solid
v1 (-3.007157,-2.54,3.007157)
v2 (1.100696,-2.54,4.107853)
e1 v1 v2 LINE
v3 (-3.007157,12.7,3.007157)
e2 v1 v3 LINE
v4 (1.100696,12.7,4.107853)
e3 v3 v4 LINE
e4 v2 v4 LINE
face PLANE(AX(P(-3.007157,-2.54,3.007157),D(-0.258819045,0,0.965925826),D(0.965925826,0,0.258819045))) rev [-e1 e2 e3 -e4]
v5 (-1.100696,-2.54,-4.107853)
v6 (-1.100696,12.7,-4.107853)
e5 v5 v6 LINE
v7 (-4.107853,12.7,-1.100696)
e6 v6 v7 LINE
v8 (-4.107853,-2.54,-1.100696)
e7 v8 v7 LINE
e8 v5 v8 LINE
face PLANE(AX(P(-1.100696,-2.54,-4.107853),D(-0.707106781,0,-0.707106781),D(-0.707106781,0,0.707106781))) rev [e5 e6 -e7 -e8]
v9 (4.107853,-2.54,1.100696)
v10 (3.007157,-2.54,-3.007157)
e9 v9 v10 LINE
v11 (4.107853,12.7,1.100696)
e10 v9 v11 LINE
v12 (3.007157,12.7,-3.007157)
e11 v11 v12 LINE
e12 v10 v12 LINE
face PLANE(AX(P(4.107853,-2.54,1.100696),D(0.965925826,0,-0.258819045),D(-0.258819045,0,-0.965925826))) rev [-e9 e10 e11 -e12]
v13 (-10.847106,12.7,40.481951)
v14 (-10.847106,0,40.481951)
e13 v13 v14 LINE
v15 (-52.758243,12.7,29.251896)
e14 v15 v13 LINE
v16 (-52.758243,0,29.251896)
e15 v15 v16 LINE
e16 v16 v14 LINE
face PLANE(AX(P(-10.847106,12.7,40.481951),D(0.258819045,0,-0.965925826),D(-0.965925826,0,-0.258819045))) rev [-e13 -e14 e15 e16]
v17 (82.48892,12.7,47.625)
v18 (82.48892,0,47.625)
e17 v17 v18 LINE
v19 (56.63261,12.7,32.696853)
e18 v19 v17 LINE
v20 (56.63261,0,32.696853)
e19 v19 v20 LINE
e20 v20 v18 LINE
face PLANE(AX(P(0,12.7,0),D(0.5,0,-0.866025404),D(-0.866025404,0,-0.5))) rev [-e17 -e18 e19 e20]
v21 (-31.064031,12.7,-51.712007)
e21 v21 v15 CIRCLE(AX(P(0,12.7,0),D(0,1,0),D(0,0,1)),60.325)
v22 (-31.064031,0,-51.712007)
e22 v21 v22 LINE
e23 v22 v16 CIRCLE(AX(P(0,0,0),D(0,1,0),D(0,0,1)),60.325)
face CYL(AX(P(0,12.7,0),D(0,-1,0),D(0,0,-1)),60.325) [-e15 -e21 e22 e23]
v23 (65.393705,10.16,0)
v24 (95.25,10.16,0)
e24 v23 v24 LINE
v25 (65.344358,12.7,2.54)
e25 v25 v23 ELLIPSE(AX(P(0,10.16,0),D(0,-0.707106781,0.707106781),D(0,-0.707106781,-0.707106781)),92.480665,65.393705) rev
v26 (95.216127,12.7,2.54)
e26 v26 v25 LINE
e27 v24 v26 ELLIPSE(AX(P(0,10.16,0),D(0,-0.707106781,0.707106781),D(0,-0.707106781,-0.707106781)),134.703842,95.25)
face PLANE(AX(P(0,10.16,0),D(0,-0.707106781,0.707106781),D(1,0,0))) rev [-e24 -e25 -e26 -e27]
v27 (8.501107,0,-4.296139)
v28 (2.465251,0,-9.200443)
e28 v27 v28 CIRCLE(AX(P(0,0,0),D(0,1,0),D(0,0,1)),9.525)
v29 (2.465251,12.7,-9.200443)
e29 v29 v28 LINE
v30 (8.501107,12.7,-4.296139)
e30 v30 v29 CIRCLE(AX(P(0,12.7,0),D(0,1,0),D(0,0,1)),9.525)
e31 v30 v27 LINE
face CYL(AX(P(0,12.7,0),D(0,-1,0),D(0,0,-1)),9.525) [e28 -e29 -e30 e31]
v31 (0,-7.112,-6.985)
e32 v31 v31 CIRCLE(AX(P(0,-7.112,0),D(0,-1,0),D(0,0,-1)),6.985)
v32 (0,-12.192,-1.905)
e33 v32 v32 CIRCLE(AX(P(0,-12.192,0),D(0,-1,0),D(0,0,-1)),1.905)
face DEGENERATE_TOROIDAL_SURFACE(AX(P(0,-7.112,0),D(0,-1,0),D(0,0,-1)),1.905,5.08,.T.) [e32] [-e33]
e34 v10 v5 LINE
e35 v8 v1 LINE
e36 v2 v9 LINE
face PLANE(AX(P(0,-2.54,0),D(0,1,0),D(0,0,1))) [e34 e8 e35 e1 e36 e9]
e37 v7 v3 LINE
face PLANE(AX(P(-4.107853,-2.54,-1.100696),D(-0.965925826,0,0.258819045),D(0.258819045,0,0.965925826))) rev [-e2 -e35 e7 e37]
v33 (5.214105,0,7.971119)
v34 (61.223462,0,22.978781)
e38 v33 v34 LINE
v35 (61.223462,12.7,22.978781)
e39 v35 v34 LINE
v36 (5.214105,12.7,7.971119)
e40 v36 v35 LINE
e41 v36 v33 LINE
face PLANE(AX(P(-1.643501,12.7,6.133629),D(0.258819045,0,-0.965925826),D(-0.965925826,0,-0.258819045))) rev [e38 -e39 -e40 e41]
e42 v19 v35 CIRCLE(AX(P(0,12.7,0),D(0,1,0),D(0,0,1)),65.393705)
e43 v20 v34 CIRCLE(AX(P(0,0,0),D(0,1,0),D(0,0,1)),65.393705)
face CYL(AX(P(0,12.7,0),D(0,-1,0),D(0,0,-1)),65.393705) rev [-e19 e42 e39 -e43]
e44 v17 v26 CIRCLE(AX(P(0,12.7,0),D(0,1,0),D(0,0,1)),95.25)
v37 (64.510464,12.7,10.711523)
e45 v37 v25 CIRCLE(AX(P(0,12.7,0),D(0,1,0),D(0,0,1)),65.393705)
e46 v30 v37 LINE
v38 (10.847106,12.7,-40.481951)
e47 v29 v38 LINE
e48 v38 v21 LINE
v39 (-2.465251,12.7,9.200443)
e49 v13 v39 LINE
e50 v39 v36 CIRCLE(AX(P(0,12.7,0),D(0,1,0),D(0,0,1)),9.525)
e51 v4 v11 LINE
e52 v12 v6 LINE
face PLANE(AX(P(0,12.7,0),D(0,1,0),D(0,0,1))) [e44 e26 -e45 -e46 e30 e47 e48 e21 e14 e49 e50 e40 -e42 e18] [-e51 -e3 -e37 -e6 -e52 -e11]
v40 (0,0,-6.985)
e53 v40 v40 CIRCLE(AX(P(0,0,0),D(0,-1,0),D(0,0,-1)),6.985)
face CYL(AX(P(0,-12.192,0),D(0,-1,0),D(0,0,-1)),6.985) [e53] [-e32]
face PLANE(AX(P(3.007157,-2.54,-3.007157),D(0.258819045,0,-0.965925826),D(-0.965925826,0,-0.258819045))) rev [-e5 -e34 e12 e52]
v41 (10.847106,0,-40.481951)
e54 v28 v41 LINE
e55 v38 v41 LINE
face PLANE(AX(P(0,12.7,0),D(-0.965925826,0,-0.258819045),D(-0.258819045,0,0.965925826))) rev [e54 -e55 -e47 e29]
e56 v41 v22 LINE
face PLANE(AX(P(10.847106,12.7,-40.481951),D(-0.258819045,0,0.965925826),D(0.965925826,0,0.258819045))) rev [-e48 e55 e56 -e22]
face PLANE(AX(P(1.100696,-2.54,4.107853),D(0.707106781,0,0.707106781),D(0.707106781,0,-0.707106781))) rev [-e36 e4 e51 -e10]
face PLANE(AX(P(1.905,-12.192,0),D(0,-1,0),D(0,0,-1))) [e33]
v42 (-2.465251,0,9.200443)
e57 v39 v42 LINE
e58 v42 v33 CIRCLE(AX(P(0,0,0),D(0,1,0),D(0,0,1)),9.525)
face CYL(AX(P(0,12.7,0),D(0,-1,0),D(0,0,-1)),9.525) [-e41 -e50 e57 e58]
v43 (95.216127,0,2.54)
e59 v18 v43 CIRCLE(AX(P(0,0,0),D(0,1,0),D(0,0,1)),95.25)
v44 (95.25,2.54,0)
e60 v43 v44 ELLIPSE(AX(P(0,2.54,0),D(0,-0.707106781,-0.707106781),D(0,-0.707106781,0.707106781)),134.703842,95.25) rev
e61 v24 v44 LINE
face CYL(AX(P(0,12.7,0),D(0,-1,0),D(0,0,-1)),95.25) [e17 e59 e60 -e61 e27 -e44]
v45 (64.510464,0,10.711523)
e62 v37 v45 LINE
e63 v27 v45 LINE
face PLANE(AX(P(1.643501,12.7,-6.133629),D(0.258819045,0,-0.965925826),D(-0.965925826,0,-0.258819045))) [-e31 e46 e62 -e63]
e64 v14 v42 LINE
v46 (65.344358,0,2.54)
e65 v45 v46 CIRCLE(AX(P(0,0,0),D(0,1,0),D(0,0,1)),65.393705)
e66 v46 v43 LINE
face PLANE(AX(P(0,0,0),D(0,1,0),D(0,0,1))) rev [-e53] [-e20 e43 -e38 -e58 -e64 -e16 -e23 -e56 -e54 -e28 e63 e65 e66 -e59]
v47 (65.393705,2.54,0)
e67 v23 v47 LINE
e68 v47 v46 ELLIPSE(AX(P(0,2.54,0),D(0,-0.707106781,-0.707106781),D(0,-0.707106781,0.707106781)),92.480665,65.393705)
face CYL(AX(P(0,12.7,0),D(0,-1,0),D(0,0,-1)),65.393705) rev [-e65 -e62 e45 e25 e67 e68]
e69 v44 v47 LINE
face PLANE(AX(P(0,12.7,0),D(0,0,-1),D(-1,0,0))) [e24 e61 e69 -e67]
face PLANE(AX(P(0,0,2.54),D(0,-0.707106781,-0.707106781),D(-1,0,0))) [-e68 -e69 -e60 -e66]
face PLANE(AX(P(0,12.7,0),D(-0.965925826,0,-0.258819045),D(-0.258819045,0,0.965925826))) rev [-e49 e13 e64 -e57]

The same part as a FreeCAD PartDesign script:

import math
import FreeCAD as App
import Part
import Sketcher

V = App.Vector
Q = App.Units.Quantity


def edges_at(feature, points):
    """Names of the edges that pass closest to the given points."""
    edges = feature.Shape.Edges
    near = lambda p: min(range(len(edges)), key=lambda i: edges[i].distToShape(Part.Vertex(*p))[0])
    return sorted({f"Edge{near(p) + 1}" for p in points})

doc = App.newDocument("Part")
params = doc.addObject("Spreadsheet::Sheet", "Params")
for row, (alias, value) in enumerate([
    ("sketch1_radius", "3.75 in"),
    ("sketch1_radius2", "0.375 in"),
    ("sketch1_radius3", "2.375 in"),
    ("sketch1_length", "1.275 in"),
    ("pad1_length", "0.5 in"),
    ("sketch2_radius", "0.2 in"),
    ("sketch2_height", "0.48 in"),
    ("sketch2_width", "0.275 in"),
    ("revolution_angle", "360 deg"),
    ("pocket1_length", "0.6 in"),
    ("chamfer_size", "0.1 in"),
], start=1):
    params.set(f"A{row}", alias)
    params.set(f"B{row}", "=" + value)
    params.setAlias(f"B{row}", alias)

body = doc.addObject("PartDesign::Body", "Body")

# Sketch on XZ plane
sketch1 = doc.addObject("Sketcher::SketchObject", "Sketch")
body.addObject(sketch1)
sketch1.AttachmentSupport = (doc.XZ_Plane, [""])
sketch1.MapMode = "FlatFace"
sketch1.addGeometry([
    Part.LineSegment(V(95.25, 0, 0), V(65.393705, 0, 0)),  # 0
    Part.ArcOfCircle(Part.Circle(V(0, 0, 0), V(0, 0, 1), 65.393705), math.radians(0), math.radians(9.427561)),  # 1
    Part.LineSegment(V(64.510464, 10.711523, 0), V(8.501107, -4.296139, 0)),  # 2
    Part.ArcOfCircle(Part.Circle(V(0, 0, 0), V(0, 0, 1), 9.525), math.radians(-75), math.radians(-26.810315)),  # 3
    Part.LineSegment(V(2.465251, -9.200443, 0), V(10.847106, -40.481951, 0)),  # 4
    Part.LineSegment(V(10.847106, -40.481951, 0), V(-31.064031, -51.712007, 0)),  # 5
    Part.ArcOfCircle(Part.Circle(V(0, 0, 0), V(0, 0, 1), 60.325), math.radians(150.993749), math.radians(239.006251)),  # 6
    Part.LineSegment(V(-52.758243, 29.251896, 0), V(-10.847106, 40.481951, 0)),  # 7
    Part.LineSegment(V(-10.847106, 40.481951, 0), V(-2.465251, 9.200443, 0)),  # 8
    Part.ArcOfCircle(Part.Circle(V(0, 0, 0), V(0, 0, 1), 9.525), math.radians(56.810315), math.radians(105)),  # 9
    Part.LineSegment(V(5.214105, 7.971119, 0), V(61.223462, 22.978781, 0)),  # 10
    Part.ArcOfCircle(Part.Circle(V(0, 0, 0), V(0, 0, 1), 65.393705), math.radians(20.572439), math.radians(30)),  # 11
    Part.LineSegment(V(56.63261, 32.696853, 0), V(82.48892, 47.625, 0)),  # 12
    Part.ArcOfCircle(Part.Circle(V(0, 0, 0), V(0, 0, 1), 95.25), math.radians(0), math.radians(30)),  # 13
], False)
sketch1.addConstraint([
    Sketcher.Constraint("Coincident", 0, 2, 1, 1),
    Sketcher.Constraint("Coincident", 1, 2, 2, 1),
    Sketcher.Constraint("Coincident", 2, 2, 3, 2),
    Sketcher.Constraint("Coincident", 3, 1, 4, 1),
    Sketcher.Constraint("Coincident", 4, 2, 5, 1),
    Sketcher.Constraint("Coincident", 5, 2, 6, 2),
    Sketcher.Constraint("Coincident", 6, 1, 7, 1),
    Sketcher.Constraint("Coincident", 7, 2, 8, 1),
    Sketcher.Constraint("Coincident", 8, 2, 9, 2),
    Sketcher.Constraint("Coincident", 9, 1, 10, 1),
    Sketcher.Constraint("Coincident", 10, 2, 11, 1),
    Sketcher.Constraint("Coincident", 11, 2, 12, 1),
    Sketcher.Constraint("Coincident", 12, 2, 13, 2),
    Sketcher.Constraint("Coincident", 13, 1, 0, 1),
    Sketcher.Constraint("Horizontal", 0),
    Sketcher.Constraint("Coincident", 1, 3, -1, 1),
    Sketcher.Constraint("Coincident", 3, 3, -1, 1),
    Sketcher.Constraint("Coincident", 6, 3, -1, 1),
    Sketcher.Constraint("Coincident", 9, 3, -1, 1),
    Sketcher.Constraint("Coincident", 11, 3, -1, 1),
    Sketcher.Constraint("Coincident", 13, 3, -1, 1),
    Sketcher.Constraint("Equal", 3, 9),
    Sketcher.Constraint("Equal", 1, 11),
    Sketcher.Constraint("Symmetric", 4, 2, 7, 2, -1, 1),
    Sketcher.Constraint("PointOnObject", 0, 2, -1),
    Sketcher.Constraint("Perpendicular", 2, 4),
    Sketcher.Constraint("Perpendicular", 4, 5),
    Sketcher.Constraint("Parallel", 5, 7),
    Sketcher.Constraint("Perpendicular", 7, 8),
    Sketcher.Constraint("Perpendicular", 8, 10),
    Sketcher.Constraint("Equal", 5, 7),
    Sketcher.Constraint("Equal", 2, 10),
    Sketcher.Constraint("Radius", 13, Q("3.75 in")),
    Sketcher.Constraint("Angle", 2, Q("-165 deg")),
    Sketcher.Constraint("Angle", 12, Q("30 deg")),
    Sketcher.Constraint("Radius", 3, Q("0.375 in")),
    Sketcher.Constraint("Radius", 6, Q("2.375 in")),
    Sketcher.Constraint("Distance", 4, Q("1.275 in")),
    Sketcher.Constraint("DistanceY", -1, 1, 12, 2, Q("1.875 in")),
    Sketcher.Constraint("Radius", 1, 65.393705),
    Sketcher.Constraint("DistanceX", 2, 2, 4, 2, 2.346),
])
sketch1.setExpression("Constraints[32]", "Params.sketch1_radius")
sketch1.setExpression("Constraints[35]", "Params.sketch1_radius2")
sketch1.setExpression("Constraints[36]", "Params.sketch1_radius3")
sketch1.setExpression("Constraints[37]", "Params.sketch1_length")
pad1 = doc.addObject("PartDesign::Pad", "Pad")
body.addObject(pad1)
pad1.Profile = sketch1
pad1.setExpression("Length", "Params.pad1_length")
pad1.Reversed = True

# Sketch on XY plane
sketch2 = doc.addObject("Sketcher::SketchObject", "Sketch001")
body.addObject(sketch2)
sketch2.AttachmentSupport = (doc.XY_Plane, [""])
sketch2.MapMode = "FlatFace"
sketch2.addGeometry([
    Part.LineSegment(V(6.985, 0, 0), V(0, 0, 0)),  # 0
    Part.LineSegment(V(0, 0, 0), V(0, -12.192, 0)),  # 1
    Part.LineSegment(V(0, -12.192, 0), V(1.905, -12.192, 0)),  # 2
    Part.ArcOfCircle(Part.Circle(V(1.905, -7.112, 0), V(0, 0, 1), 5.08), math.radians(-90), math.radians(0)),  # 3
    Part.LineSegment(V(6.985, -7.112, 0), V(6.985, 0, 0)),  # 4
], False)
sketch2.addConstraint([
    Sketcher.Constraint("Coincident", 0, 2, 1, 1),
    Sketcher.Constraint("Coincident", 1, 2, 2, 1),
    Sketcher.Constraint("Tangent", 2, 2, 3, 1),
    Sketcher.Constraint("Tangent", 3, 2, 4, 1),
    Sketcher.Constraint("Coincident", 4, 2, 0, 1),
    Sketcher.Constraint("Horizontal", 0),
    Sketcher.Constraint("Vertical", 1),
    Sketcher.Constraint("Horizontal", 2),
    Sketcher.Constraint("Vertical", 4),
    Sketcher.Constraint("Coincident", 0, 2, -1, 1),
    Sketcher.Constraint("Radius", 3, Q("0.2 in")),
    Sketcher.Constraint("DistanceY", 1, 2, 1, 1, Q("0.48 in")),
    Sketcher.Constraint("DistanceX", 0, 2, 0, 1, Q("0.275 in")),
])
sketch2.setExpression("Constraints[10]", "Params.sketch2_radius")
sketch2.setExpression("Constraints[11]", "Params.sketch2_height")
sketch2.setExpression("Constraints[12]", "Params.sketch2_width")
revolution = doc.addObject("PartDesign::Revolution", "Revolution")
body.addObject(revolution)
revolution.Profile = sketch2
revolution.ReferenceAxis = (sketch2, ["V_Axis"])
revolution.setExpression("Angle", "Params.revolution_angle")

# Sketch on XZ plane
sketch3 = doc.addObject("Sketcher::SketchObject", "Sketch002")
body.addObject(sketch3)
sketch3.AttachmentSupport = (doc.XZ_Plane, [""])
sketch3.MapMode = "FlatFace"
sketch3.AttachmentOffset = App.Placement(V(0, 0, -0.5 * 25.4), App.Rotation())
sketch3.addGeometry([
    Part.LineSegment(V(3.007157, -3.007157, 0), V(-1.100696, -4.107853, 0)),  # 0
    Part.LineSegment(V(-1.100696, -4.107853, 0), V(-4.107853, -1.100696, 0)),  # 1
    Part.LineSegment(V(-4.107853, -1.100696, 0), V(-3.007157, 3.007157, 0)),  # 2
    Part.LineSegment(V(-3.007157, 3.007157, 0), V(1.100696, 4.107853, 0)),  # 3
    Part.LineSegment(V(1.100696, 4.107853, 0), V(4.107853, 1.100696, 0)),  # 4
    Part.LineSegment(V(4.107853, 1.100696, 0), V(3.007157, -3.007157, 0)),  # 5
], False)
sketch3.addConstraint([
    Sketcher.Constraint("Coincident", 0, 2, 1, 1),
    Sketcher.Constraint("Coincident", 1, 2, 2, 1),
    Sketcher.Constraint("Coincident", 2, 2, 3, 1),
    Sketcher.Constraint("Coincident", 3, 2, 4, 1),
    Sketcher.Constraint("Coincident", 4, 2, 5, 1),
    Sketcher.Constraint("Coincident", 5, 2, 0, 1),
    Sketcher.Constraint("Symmetric", 0, 2, 3, 2, -1, 1),
    Sketcher.Constraint("Symmetric", 1, 2, 4, 2, -1, 1),
    Sketcher.Constraint("Symmetric", 2, 2, 5, 2, -1, 1),
    Sketcher.Constraint("Equal", 0, 1),
    Sketcher.Constraint("Equal", 1, 2),
    Sketcher.Constraint("Angle", 0, Q("-165 deg")),
    Sketcher.Constraint("Angle", 1, Q("135 deg")),
    Sketcher.Constraint("Angle", 2, Q("75 deg")),
    Sketcher.Constraint("DistanceX", 2, 2, 0, 2, 1.906461),
])
pocket1 = doc.addObject("PartDesign::Pocket", "Pocket")
body.addObject(pocket1)
pocket1.Profile = sketch3
pocket1.setExpression("Length", "Params.pocket1_length")
pocket1.Reversed = True
doc.recompute()

chamfer = doc.addObject("PartDesign::Chamfer", "Chamfer")
body.addObject(chamfer)
chamfer.Base = (pocket1, edges_at(pocket1, [(80.322, 0, 0), (80.322, 12.7, 0)]))
chamfer.setExpression("Size", "Params.chamfer_size")

doc.recompute()
